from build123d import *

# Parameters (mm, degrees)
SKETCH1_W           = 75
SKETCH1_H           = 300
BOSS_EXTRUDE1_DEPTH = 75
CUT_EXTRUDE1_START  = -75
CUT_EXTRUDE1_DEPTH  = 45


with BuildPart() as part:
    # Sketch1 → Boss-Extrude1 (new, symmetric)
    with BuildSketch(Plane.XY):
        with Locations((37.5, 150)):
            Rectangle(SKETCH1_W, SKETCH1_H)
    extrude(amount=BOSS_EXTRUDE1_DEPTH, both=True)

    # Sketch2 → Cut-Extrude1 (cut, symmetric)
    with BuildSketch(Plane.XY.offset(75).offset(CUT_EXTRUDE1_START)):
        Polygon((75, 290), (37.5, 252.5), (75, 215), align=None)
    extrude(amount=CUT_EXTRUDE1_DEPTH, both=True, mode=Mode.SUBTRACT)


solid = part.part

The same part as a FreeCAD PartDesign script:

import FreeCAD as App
import Part
import Sketcher

doc = App.newDocument("Part")
body = doc.addObject("PartDesign::Body", "Body")

sketch1 = body.newObject("Sketcher::SketchObject", "Sketch")
sketch1.AttachmentSupport = (doc.getObject("XY_Plane"), [""])
sketch1.MapMode = "FlatFace"
sketch1.addGeometry([
    Part.LineSegment(App.Vector(0, 300, 0), App.Vector(0, 0, 0)),
    Part.LineSegment(App.Vector(0, 0, 0), App.Vector(75, 0, 0)),
    Part.LineSegment(App.Vector(75, 0, 0), App.Vector(75, 300, 0)),
    Part.LineSegment(App.Vector(75, 300, 0), App.Vector(0, 300, 0)),
], False)
sketch1.addConstraint([
    Sketcher.Constraint("Coincident", 0, 2, 1, 1),
    Sketcher.Constraint("Coincident", 1, 2, 2, 1),
    Sketcher.Constraint("Coincident", 2, 2, 3, 1),
    Sketcher.Constraint("Coincident", 3, 2, 0, 1),
    Sketcher.Constraint("Vertical", 0),
    Sketcher.Constraint("Horizontal", 1),
    Sketcher.Constraint("Vertical", 2),
    Sketcher.Constraint("Horizontal", 3),
    Sketcher.Constraint("Coincident", 0, 2, -1, 1),
    Sketcher.Constraint("DistanceX", 1, 1, 1, 2, 75.0),
    Sketcher.Constraint("DistanceY", 0, 2, 0, 1, 300.0),
])
pad1 = body.newObject("PartDesign::Pad", "Pad")
pad1.Profile = sketch1
pad1.Length = 150
pad1.Midplane = True

sketch2 = body.newObject("Sketcher::SketchObject", "Sketch001")
sketch2.AttachmentSupport = (doc.getObject("XY_Plane"), [""])
sketch2.MapMode = "FlatFace"
sketch2.addGeometry([
    Part.LineSegment(App.Vector(75, 290, 0), App.Vector(38, 252, 0)),
    Part.LineSegment(App.Vector(38, 252, 0), App.Vector(75, 215, 0)),
    Part.LineSegment(App.Vector(75, 215, 0), App.Vector(75, 290, 0)),
], False)
sketch2.addConstraint([
    Sketcher.Constraint("Coincident", 0, 2, 1, 1),
    Sketcher.Constraint("Coincident", 1, 2, 2, 1),
    Sketcher.Constraint("Coincident", 2, 2, 0, 1),
    Sketcher.Constraint("Vertical", 2),
    Sketcher.Constraint("Perpendicular", 0, 1),
    Sketcher.Constraint("Equal", 0, 1),
    Sketcher.Constraint("DistanceY", 2, 1, 2, 2, 75.0),
    Sketcher.Constraint("DistanceX", -1, 1, 1, 2, 75.0),
    Sketcher.Constraint("DistanceY", -1, 1, 1, 2, 215.0),
])
pocket1 = body.newObject("PartDesign::Pocket", "Pocket")
pocket1.Profile = sketch2
pocket1.Length = 90
pocket1.Midplane = True

doc.recompute()
